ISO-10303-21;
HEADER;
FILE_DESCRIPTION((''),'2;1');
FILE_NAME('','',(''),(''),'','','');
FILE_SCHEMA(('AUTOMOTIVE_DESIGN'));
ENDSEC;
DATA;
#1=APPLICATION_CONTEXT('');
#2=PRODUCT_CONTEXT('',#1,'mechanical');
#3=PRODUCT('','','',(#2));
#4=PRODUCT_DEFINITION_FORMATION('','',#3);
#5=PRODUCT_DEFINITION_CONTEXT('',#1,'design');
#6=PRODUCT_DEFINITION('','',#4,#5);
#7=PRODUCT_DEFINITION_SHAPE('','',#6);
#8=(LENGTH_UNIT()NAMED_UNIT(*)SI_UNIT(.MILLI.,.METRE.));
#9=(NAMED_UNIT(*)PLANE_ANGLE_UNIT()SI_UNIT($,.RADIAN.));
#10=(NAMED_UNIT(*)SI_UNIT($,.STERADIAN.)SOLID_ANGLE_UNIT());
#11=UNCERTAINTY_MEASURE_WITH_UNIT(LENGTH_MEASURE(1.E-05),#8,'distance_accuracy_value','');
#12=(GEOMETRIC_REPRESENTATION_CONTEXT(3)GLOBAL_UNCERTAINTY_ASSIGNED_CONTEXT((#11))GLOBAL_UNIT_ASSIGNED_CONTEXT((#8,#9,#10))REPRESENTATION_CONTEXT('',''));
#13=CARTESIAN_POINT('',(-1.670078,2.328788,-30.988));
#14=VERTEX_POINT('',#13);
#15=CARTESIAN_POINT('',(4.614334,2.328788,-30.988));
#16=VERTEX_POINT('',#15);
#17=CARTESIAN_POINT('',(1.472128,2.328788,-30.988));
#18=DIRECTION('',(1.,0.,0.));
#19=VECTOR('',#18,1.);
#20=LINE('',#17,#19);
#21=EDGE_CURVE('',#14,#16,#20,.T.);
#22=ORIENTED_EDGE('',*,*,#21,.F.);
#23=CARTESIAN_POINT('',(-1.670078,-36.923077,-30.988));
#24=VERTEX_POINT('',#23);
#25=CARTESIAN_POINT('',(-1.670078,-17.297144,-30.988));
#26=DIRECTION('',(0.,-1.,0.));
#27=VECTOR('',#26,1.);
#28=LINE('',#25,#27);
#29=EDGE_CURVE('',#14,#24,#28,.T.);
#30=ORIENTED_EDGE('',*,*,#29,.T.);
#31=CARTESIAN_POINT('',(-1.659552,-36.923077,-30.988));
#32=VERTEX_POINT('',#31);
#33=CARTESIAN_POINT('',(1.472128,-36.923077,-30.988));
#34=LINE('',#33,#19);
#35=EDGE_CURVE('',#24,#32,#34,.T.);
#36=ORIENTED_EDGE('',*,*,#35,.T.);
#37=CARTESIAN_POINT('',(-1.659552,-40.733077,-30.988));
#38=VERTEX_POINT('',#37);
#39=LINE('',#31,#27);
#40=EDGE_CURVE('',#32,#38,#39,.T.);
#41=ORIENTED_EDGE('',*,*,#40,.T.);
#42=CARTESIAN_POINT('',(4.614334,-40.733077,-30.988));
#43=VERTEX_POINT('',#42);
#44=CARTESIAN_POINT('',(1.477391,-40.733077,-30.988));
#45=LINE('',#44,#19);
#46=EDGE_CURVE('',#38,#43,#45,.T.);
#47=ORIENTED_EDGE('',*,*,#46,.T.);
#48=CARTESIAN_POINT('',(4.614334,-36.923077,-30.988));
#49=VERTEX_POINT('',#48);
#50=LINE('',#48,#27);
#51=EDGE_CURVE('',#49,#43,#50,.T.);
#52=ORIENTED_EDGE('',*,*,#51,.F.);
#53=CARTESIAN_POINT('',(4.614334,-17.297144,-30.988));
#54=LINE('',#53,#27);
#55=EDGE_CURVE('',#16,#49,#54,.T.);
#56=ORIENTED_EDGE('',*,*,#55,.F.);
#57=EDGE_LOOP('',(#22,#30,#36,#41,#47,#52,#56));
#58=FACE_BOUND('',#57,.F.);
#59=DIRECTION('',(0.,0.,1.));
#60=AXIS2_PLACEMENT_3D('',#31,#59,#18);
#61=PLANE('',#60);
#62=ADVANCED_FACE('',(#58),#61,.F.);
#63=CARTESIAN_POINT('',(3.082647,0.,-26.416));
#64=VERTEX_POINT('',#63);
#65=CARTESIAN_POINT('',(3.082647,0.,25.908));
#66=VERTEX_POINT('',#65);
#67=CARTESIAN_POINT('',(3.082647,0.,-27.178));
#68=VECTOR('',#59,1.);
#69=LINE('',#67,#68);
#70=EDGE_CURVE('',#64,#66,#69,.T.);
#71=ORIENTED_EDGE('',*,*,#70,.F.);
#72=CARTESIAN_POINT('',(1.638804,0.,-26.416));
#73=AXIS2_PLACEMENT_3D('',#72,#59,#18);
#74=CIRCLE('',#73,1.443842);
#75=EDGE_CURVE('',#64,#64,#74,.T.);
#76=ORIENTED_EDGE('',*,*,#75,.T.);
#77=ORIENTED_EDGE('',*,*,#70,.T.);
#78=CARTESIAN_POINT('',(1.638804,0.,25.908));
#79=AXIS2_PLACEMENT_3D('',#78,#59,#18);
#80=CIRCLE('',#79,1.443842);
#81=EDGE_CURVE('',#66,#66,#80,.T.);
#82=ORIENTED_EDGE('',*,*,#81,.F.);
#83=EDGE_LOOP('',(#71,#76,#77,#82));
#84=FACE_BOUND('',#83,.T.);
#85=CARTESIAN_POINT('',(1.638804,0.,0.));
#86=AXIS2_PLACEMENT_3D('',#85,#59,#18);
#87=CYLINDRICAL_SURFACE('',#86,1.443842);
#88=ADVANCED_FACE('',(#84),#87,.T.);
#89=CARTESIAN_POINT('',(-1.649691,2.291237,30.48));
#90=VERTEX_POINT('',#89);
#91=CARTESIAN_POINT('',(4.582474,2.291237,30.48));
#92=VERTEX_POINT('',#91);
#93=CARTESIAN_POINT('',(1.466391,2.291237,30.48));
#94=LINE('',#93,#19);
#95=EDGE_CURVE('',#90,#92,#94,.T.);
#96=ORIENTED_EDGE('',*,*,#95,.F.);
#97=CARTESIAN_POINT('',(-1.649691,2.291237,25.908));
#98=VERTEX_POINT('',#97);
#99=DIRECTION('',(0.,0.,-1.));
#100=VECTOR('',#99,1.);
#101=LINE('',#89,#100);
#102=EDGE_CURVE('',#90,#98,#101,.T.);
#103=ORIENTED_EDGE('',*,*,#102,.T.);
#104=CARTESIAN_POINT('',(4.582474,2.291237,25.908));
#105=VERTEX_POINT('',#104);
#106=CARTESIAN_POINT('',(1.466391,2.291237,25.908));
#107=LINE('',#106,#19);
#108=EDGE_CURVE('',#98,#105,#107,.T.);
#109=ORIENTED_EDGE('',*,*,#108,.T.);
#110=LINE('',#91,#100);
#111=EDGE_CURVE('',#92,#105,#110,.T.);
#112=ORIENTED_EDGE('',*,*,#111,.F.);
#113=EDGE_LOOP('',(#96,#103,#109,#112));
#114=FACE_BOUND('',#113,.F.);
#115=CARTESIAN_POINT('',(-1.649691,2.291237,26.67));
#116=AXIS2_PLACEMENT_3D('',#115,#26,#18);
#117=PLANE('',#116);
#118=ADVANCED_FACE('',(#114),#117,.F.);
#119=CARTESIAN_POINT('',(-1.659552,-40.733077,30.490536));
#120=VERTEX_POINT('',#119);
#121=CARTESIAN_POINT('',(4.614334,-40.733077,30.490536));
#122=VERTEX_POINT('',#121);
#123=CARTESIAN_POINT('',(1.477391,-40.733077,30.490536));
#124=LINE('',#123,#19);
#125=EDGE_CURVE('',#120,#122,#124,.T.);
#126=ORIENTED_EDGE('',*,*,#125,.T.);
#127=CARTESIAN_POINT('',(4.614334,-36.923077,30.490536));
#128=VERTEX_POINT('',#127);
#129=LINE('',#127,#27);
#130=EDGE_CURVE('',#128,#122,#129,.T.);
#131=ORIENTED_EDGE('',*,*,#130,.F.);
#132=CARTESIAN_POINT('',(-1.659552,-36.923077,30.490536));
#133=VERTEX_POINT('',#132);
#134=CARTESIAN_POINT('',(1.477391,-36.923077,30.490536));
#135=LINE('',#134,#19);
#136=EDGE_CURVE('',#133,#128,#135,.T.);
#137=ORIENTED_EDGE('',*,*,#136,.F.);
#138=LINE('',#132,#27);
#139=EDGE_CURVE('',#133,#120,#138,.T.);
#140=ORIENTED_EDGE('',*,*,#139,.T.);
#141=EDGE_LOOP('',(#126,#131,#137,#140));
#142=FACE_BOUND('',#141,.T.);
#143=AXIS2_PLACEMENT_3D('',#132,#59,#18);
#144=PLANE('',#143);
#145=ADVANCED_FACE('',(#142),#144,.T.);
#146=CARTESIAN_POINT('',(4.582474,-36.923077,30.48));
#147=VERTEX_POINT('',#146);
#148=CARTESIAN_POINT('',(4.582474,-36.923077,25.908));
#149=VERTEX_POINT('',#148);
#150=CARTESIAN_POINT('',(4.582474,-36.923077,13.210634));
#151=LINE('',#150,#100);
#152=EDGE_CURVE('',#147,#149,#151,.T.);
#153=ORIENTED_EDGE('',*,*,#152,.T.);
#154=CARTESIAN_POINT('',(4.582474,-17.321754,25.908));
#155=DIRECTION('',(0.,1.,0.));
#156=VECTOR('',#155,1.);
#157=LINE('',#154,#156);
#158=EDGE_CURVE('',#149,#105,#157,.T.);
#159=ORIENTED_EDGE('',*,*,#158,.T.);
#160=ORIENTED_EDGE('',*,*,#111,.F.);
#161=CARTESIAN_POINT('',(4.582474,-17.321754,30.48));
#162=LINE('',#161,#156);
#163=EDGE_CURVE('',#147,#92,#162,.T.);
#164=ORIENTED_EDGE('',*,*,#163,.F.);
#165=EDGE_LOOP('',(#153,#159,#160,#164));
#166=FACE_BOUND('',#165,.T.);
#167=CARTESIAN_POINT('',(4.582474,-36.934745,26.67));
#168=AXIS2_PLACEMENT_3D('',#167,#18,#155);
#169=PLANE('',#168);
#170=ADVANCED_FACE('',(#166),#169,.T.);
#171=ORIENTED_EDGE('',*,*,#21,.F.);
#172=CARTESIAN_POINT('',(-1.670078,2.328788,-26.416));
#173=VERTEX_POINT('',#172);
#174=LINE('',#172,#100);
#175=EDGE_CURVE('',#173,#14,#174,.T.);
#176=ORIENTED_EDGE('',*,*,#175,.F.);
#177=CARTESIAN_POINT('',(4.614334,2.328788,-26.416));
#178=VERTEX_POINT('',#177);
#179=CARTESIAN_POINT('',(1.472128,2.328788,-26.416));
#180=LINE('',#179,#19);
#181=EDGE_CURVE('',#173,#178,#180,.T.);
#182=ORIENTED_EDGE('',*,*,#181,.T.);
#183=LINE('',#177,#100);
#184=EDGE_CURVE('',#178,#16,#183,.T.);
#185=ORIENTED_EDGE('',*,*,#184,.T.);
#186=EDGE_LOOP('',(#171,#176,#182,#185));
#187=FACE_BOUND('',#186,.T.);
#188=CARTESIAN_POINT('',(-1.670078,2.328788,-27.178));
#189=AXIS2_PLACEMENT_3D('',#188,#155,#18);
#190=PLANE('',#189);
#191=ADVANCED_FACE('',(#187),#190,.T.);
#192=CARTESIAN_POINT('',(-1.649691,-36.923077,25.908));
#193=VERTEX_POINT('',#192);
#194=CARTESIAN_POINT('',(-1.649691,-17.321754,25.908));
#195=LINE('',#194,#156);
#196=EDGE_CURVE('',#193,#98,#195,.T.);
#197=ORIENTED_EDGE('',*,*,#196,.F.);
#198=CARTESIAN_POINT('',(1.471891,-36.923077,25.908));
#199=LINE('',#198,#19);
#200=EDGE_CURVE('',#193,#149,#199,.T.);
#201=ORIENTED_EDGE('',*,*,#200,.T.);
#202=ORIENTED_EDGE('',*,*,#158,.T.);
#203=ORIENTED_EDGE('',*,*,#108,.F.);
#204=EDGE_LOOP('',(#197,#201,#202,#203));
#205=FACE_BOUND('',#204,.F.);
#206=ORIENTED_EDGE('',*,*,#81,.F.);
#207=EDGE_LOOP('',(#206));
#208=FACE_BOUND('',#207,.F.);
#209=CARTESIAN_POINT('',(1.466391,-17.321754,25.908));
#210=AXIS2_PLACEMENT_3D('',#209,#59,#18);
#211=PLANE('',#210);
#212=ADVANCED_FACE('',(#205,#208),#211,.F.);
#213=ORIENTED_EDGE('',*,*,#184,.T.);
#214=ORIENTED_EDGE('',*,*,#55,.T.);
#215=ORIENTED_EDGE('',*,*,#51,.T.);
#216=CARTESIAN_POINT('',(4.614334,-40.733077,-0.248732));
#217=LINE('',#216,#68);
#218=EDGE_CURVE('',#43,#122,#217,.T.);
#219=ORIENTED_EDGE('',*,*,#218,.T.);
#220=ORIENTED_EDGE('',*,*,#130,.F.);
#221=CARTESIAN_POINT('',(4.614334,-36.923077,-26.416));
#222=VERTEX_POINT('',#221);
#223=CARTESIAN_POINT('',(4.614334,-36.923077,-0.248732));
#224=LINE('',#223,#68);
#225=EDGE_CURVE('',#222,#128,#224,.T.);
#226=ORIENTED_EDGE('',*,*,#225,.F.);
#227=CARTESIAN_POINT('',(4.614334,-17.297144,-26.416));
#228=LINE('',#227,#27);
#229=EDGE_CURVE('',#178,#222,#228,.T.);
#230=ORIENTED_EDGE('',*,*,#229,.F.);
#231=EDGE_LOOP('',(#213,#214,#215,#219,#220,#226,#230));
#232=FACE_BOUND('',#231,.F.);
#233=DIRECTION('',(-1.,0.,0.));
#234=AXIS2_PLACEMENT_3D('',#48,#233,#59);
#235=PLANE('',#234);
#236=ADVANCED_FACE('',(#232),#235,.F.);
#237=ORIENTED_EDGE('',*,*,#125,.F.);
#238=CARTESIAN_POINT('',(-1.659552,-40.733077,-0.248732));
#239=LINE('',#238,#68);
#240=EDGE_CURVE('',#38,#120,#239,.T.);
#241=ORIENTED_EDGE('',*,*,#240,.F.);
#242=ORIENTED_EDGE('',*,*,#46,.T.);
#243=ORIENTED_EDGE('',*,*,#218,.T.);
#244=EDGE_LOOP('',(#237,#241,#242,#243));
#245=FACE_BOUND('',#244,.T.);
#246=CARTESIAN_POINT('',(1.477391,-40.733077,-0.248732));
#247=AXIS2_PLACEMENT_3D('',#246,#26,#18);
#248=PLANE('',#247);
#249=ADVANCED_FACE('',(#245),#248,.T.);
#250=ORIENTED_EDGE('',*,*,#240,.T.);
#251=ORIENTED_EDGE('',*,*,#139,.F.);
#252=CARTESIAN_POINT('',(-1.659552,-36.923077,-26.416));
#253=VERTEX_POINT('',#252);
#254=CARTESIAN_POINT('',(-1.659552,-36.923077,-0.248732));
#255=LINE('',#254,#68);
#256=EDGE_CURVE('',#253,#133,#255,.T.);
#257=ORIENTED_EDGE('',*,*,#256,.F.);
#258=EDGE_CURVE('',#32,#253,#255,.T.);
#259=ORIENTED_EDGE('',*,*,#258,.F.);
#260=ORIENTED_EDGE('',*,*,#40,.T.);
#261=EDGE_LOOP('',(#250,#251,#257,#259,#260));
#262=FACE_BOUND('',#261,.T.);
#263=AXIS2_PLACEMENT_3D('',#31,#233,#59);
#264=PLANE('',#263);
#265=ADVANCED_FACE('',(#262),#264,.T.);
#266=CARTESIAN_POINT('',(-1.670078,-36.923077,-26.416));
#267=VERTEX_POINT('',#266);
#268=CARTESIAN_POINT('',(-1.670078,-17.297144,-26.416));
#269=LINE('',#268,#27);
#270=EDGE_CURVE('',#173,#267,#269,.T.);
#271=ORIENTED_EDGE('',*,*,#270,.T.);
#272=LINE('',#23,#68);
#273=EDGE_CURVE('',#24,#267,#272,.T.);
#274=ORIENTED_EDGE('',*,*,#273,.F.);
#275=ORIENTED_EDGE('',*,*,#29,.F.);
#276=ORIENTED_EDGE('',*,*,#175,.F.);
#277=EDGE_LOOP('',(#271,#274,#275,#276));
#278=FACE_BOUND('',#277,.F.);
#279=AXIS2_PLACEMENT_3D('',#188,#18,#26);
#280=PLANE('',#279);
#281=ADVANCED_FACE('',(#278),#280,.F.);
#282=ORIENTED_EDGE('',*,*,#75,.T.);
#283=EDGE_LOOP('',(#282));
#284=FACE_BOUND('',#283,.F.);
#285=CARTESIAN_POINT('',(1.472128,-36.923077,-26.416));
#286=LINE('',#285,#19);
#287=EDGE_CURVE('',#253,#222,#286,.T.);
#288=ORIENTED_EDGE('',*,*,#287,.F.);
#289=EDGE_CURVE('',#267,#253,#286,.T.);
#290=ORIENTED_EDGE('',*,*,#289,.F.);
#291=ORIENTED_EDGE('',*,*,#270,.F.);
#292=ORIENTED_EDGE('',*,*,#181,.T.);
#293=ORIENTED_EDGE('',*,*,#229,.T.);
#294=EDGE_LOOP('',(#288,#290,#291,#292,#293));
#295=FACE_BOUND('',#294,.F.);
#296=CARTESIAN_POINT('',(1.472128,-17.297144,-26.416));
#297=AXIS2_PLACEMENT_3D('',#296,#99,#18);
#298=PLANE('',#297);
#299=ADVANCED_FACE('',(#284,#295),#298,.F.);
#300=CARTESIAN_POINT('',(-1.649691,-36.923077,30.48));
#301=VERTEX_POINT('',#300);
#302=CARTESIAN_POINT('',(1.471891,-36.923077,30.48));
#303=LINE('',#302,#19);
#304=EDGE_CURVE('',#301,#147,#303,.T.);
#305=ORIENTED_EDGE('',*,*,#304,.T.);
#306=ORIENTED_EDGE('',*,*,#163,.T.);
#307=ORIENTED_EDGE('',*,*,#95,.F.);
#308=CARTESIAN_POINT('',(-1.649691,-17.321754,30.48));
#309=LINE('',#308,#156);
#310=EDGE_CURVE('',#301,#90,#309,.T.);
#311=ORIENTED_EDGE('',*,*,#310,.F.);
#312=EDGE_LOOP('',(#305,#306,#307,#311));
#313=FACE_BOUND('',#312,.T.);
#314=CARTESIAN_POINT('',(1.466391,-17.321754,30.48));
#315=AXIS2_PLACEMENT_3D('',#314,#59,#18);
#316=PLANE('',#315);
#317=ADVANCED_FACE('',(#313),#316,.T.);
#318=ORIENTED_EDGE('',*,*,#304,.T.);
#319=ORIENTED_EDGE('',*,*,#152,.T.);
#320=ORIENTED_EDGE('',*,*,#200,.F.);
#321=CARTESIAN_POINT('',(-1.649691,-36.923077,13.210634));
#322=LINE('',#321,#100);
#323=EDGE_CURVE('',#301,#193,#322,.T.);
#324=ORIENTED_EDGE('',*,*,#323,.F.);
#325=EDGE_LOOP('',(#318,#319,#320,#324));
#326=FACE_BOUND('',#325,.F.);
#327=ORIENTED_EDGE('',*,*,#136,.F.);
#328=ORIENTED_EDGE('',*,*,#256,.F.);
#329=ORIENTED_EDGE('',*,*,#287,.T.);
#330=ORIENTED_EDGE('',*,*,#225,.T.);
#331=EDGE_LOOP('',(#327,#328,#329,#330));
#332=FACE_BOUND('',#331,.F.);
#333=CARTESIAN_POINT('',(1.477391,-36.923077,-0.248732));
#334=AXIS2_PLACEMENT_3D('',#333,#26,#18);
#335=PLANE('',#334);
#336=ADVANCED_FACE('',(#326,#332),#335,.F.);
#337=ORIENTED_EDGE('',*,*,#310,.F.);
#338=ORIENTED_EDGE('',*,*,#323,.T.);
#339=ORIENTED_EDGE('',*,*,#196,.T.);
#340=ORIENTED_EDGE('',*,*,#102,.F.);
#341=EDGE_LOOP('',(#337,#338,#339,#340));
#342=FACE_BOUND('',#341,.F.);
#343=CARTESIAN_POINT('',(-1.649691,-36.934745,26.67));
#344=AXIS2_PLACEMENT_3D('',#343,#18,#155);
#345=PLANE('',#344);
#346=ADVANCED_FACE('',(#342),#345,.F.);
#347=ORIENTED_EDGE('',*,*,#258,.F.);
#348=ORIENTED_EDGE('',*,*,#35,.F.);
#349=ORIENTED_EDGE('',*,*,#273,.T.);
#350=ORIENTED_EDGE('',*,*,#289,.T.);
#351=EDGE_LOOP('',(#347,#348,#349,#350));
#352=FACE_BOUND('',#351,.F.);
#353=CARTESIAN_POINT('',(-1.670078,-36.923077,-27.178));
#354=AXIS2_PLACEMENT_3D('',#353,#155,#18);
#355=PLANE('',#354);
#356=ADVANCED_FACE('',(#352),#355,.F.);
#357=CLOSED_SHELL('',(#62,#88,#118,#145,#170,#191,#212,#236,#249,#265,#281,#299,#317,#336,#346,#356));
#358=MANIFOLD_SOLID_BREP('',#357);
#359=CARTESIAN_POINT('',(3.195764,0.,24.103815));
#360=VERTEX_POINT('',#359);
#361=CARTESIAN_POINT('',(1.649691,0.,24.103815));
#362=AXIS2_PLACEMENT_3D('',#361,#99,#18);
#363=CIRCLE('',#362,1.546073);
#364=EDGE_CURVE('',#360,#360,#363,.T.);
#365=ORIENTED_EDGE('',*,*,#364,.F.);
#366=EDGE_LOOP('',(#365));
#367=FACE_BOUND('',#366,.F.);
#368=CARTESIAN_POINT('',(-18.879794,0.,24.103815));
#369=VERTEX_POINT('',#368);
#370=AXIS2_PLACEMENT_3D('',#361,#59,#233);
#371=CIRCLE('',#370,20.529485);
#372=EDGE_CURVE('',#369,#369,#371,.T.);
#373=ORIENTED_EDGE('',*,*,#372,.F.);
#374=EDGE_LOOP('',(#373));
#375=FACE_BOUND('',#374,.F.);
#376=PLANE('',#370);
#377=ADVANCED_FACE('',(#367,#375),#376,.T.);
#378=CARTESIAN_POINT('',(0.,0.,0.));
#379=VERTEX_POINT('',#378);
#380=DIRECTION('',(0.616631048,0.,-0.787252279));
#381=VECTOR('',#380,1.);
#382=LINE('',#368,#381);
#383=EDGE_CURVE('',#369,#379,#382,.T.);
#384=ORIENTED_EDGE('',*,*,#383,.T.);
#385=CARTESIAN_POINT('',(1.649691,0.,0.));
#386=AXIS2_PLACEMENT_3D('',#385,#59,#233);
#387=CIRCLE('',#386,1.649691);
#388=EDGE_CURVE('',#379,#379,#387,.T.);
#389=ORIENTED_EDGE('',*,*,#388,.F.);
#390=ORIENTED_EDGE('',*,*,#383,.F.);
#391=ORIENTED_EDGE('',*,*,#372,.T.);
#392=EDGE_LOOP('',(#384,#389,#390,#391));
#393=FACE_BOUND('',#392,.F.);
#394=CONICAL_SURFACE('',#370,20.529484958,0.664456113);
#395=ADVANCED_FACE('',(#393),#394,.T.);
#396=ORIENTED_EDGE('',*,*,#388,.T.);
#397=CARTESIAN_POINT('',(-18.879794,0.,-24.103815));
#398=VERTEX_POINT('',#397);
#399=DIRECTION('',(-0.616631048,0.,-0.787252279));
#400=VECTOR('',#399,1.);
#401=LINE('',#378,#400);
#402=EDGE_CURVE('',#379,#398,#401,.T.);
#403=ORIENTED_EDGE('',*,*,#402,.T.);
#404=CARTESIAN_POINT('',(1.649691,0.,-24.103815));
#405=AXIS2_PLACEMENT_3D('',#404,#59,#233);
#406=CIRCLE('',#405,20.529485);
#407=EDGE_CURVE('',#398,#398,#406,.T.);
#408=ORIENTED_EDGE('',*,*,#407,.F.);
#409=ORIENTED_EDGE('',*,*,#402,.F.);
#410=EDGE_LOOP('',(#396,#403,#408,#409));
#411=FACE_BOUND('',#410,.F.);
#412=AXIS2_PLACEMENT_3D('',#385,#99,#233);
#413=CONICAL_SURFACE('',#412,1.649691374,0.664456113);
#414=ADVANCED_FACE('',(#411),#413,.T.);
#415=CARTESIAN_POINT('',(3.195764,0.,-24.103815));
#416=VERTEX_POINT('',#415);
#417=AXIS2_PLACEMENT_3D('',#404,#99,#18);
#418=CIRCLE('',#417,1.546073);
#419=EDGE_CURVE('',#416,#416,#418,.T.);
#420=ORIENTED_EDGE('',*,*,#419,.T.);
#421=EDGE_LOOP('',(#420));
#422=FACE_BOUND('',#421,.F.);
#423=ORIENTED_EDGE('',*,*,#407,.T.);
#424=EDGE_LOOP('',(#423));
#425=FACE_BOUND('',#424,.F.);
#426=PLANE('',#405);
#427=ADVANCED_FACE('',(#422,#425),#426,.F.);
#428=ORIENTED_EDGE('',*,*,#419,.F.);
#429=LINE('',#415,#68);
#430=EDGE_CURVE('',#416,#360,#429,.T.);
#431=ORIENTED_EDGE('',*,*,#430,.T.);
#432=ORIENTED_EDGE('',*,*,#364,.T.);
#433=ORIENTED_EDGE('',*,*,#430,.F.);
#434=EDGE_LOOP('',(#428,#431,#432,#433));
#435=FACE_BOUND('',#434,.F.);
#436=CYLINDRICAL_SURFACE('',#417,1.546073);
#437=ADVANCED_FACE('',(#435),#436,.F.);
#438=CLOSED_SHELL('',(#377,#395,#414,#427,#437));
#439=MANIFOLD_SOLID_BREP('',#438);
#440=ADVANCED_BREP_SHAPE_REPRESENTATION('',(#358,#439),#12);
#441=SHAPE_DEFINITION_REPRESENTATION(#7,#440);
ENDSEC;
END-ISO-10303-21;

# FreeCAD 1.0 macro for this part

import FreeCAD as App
import Part
import Sketcher
from FreeCAD import Vector
Q = App.Units.Quantity


def add_polygon(sketch, points):
    """Adds a closed chain of lines whose ends are joined by coincident constraints."""
    first, n = sketch.GeometryCount, len(points)
    for a, b in zip(points, points[1:] + points[:1]):
        sketch.addGeometry(Part.LineSegment(App.Vector(*a, 0), App.Vector(*b, 0)), False)
    for i in range(n):
        sketch.addConstraint(Sketcher.Constraint("Coincident", first + i, 2, first + (i + 1) % n, 1))

doc = App.newDocument("Part")
body = doc.addObject("PartDesign::Body", "Body")

sketch1 = body.newObject("Sketcher::SketchObject", "Sketch")
sketch1.AttachmentSupport = (doc.getObject("XZ_Plane"), [""])
sketch1.MapMode = "FlatFace"
add_polygon(sketch1, [(-19, 24), (0, 0), (-19, -24), (2, -24), (2, 24)])
sketch1.addGeometry(Part.LineSegment(Vector(2, -24, 0), Vector(2, 24, 0)), True)
sketch1.addConstraint([
    Sketcher.Constraint("Horizontal", 2),
    Sketcher.Constraint("Vertical", 3),
    Sketcher.Constraint("Horizontal", 4),
    Sketcher.Constraint("Vertical", 5),
    Sketcher.Constraint("Coincident", 0, 2, -1, 1),
    Sketcher.Constraint("Coincident", 5, 1, 2, 2),
    Sketcher.Constraint("Symmetric", 1, 2, 4, 2, -1),
    Sketcher.Constraint("Horizontal", 4, 2, 5, 2),
    Sketcher.Constraint("DistanceY", 3, 1, 3, 2, Q("48.207629 mm")),
    Sketcher.Constraint("Distance", 0, Q("30.61765 mm")),
    Sketcher.Constraint("DistanceX", 2, 1, 2, 2, Q("20.529485 mm")),
])
revolution = body.newObject("PartDesign::Revolution", "Revolution")
revolution.Profile = sketch1
revolution.ReferenceAxis = (sketch1, ["Axis0"])
revolution.Angle = 360

sketch2 = body.newObject("Sketcher::SketchObject", "Sketch001")
sketch2.AttachmentSupport = (doc.getObject("XY_Plane"), [""])
sketch2.MapMode = "FlatFace"
sketch2.AttachmentOffset = App.Placement(Vector(0, 0, -24.103815), App.Rotation())
sketch2.addGeometry(Part.Circle(Vector(1.6, 0, 0), Vector(0, 0, 1), 1.5), False)
sketch2.addConstraint([
    Sketcher.Constraint("PointOnObject", 0, 3, -1),
    Sketcher.Constraint("Diameter", 0, Q("3.092146 mm")),
    Sketcher.Constraint("DistanceX", -1, 1, 0, 3, Q("1.649691 mm")),
])
pocket1 = body.newObject("PartDesign::Pocket", "Pocket")
pocket1.Profile = sketch2
pocket1.Length = Q("2.78 in")
pocket1.Reversed = True
body2 = doc.addObject("PartDesign::Body", "Body001")

sketch3 = body2.newObject("Sketcher::SketchObject", "Sketch002")
sketch3.AttachmentSupport = (doc.getObject("XY_Plane001"), [""])
sketch3.MapMode = "FlatFace"
sketch3.addGeometry(Part.Circle(Vector(1.6, 0, 0), Vector(0, 0, 1), 1.4), False)
sketch3.addConstraint([
    Sketcher.Constraint("PointOnObject", 0, 3, -1),
    Sketcher.Constraint("Diameter", 0, Q("2.887685 mm")),
    Sketcher.Constraint("DistanceX", -1, 1, 0, 3, Q("1.638804 mm")),
])
pad1 = body2.newObject("PartDesign::Pad", "Pad")
pad1.Profile = sketch3
pad1.Type = "TwoLengths"
pad1.Length = Q("1.05 in")
pad1.Length2 = Q("1.07 in")

sketch4 = body2.newObject("Sketcher::SketchObject", "Sketch003")
sketch4.AttachmentSupport = (doc.getObject("XY_Plane001"), [""])
sketch4.MapMode = "FlatFace"
sketch4.AttachmentOffset = App.Placement(Vector(0, 0, 1.05 * 25.4), App.Rotation())
add_polygon(sketch4, [(-2, 2), (-2, -37), (5, -37), (5, 2)])
sketch4.addConstraint([
    Sketcher.Constraint("Vertical", 0),
    Sketcher.Constraint("Horizontal", 1),
    Sketcher.Constraint("Vertical", 2),
    Sketcher.Constraint("Horizontal", 3),
    Sketcher.Constraint("DistanceY", 0, 2, 0, 1, Q("39.225982 mm")),
    Sketcher.Constraint("DistanceX", 1, 1, 1, 2, Q("6.232164 mm")),
    Sketcher.Constraint("DistanceX", 0, 2, -1, 1, Q("1.649691 mm")),
    Sketcher.Constraint("DistanceY", 0, 2, -1, 1, Q("36.934745 mm")),
])
pad2 = body2.newObject("PartDesign::Pad", "Pad001")
pad2.Profile = sketch4
pad2.Type = "TwoLengths"
pad2.Length = Q("0.15 in")
pad2.Length2 = Q("0.03 in")

sketch5 = body2.newObject("Sketcher::SketchObject", "Sketch004")
sketch5.AttachmentSupport = (doc.getObject("XY_Plane001"), [""])
sketch5.MapMode = "FlatFace"
sketch5.AttachmentOffset = App.Placement(Vector(0, 0, -1.07 * 25.4), App.Rotation())
add_polygon(sketch5, [(-2, -37), (-2, 2), (5, 2), (5, -37)])
sketch5.addConstraint([
    Sketcher.Constraint("Vertical", 0),
    Sketcher.Constraint("Horizontal", 1),
    Sketcher.Constraint("Vertical", 2),
    Sketcher.Constraint("Horizontal", 3),
    Sketcher.Constraint("DistanceX", 1, 1, 1, 2, Q("6.284413 mm")),
    Sketcher.Constraint("DistanceY", 0, 1, 0, 2, Q("39.251865 mm")),
    Sketcher.Constraint("DistanceX", 0, 2, -1, 1, Q("1.670078 mm")),
    Sketcher.Constraint("DistanceY", -1, 1, 0, 2, Q("2.328788 mm")),
])
pad3 = body2.newObject("PartDesign::Pad", "Pad002")
pad3.Profile = sketch5
pad3.Type = "TwoLengths"
pad3.Length = Q("0.15 in")
pad3.Length2 = Q("0.03 in")
pad3.Reversed = True

sketch6 = body2.newObject("Sketcher::SketchObject", "Sketch005")
sketch6.AttachmentSupport = (doc.getObject("XZ_Plane001"), [""])
sketch6.MapMode = "FlatFace"
sketch6.AttachmentOffset = App.Placement(Vector(0, 0, 36.923077), App.Rotation())
add_polygon(sketch6, [(-2, 30), (-2, -31), (5, -31), (5, 30)])
sketch6.addConstraint([
    Sketcher.Constraint("Vertical", 0),
    Sketcher.Constraint("Horizontal", 1),
    Sketcher.Constraint("Vertical", 2),
    Sketcher.Constraint("Horizontal", 3),
    Sketcher.Constraint("DistanceY", 0, 2, -1, 1, Q("1.22 in")),
    Sketcher.Constraint("DistanceX", 1, 1, 1, 2, Q("6.273886 mm")),
    Sketcher.Constraint("DistanceY", 0, 2, 0, 1, Q("61.478536 mm")),
    Sketcher.Constraint("DistanceX", 0, 2, -1, 1, Q("1.659552 mm")),
])
pad4 = body2.newObject("PartDesign::Pad", "Pad003")
pad4.Profile = sketch6
pad4.Length = Q("0.15 in")

doc.recompute()
